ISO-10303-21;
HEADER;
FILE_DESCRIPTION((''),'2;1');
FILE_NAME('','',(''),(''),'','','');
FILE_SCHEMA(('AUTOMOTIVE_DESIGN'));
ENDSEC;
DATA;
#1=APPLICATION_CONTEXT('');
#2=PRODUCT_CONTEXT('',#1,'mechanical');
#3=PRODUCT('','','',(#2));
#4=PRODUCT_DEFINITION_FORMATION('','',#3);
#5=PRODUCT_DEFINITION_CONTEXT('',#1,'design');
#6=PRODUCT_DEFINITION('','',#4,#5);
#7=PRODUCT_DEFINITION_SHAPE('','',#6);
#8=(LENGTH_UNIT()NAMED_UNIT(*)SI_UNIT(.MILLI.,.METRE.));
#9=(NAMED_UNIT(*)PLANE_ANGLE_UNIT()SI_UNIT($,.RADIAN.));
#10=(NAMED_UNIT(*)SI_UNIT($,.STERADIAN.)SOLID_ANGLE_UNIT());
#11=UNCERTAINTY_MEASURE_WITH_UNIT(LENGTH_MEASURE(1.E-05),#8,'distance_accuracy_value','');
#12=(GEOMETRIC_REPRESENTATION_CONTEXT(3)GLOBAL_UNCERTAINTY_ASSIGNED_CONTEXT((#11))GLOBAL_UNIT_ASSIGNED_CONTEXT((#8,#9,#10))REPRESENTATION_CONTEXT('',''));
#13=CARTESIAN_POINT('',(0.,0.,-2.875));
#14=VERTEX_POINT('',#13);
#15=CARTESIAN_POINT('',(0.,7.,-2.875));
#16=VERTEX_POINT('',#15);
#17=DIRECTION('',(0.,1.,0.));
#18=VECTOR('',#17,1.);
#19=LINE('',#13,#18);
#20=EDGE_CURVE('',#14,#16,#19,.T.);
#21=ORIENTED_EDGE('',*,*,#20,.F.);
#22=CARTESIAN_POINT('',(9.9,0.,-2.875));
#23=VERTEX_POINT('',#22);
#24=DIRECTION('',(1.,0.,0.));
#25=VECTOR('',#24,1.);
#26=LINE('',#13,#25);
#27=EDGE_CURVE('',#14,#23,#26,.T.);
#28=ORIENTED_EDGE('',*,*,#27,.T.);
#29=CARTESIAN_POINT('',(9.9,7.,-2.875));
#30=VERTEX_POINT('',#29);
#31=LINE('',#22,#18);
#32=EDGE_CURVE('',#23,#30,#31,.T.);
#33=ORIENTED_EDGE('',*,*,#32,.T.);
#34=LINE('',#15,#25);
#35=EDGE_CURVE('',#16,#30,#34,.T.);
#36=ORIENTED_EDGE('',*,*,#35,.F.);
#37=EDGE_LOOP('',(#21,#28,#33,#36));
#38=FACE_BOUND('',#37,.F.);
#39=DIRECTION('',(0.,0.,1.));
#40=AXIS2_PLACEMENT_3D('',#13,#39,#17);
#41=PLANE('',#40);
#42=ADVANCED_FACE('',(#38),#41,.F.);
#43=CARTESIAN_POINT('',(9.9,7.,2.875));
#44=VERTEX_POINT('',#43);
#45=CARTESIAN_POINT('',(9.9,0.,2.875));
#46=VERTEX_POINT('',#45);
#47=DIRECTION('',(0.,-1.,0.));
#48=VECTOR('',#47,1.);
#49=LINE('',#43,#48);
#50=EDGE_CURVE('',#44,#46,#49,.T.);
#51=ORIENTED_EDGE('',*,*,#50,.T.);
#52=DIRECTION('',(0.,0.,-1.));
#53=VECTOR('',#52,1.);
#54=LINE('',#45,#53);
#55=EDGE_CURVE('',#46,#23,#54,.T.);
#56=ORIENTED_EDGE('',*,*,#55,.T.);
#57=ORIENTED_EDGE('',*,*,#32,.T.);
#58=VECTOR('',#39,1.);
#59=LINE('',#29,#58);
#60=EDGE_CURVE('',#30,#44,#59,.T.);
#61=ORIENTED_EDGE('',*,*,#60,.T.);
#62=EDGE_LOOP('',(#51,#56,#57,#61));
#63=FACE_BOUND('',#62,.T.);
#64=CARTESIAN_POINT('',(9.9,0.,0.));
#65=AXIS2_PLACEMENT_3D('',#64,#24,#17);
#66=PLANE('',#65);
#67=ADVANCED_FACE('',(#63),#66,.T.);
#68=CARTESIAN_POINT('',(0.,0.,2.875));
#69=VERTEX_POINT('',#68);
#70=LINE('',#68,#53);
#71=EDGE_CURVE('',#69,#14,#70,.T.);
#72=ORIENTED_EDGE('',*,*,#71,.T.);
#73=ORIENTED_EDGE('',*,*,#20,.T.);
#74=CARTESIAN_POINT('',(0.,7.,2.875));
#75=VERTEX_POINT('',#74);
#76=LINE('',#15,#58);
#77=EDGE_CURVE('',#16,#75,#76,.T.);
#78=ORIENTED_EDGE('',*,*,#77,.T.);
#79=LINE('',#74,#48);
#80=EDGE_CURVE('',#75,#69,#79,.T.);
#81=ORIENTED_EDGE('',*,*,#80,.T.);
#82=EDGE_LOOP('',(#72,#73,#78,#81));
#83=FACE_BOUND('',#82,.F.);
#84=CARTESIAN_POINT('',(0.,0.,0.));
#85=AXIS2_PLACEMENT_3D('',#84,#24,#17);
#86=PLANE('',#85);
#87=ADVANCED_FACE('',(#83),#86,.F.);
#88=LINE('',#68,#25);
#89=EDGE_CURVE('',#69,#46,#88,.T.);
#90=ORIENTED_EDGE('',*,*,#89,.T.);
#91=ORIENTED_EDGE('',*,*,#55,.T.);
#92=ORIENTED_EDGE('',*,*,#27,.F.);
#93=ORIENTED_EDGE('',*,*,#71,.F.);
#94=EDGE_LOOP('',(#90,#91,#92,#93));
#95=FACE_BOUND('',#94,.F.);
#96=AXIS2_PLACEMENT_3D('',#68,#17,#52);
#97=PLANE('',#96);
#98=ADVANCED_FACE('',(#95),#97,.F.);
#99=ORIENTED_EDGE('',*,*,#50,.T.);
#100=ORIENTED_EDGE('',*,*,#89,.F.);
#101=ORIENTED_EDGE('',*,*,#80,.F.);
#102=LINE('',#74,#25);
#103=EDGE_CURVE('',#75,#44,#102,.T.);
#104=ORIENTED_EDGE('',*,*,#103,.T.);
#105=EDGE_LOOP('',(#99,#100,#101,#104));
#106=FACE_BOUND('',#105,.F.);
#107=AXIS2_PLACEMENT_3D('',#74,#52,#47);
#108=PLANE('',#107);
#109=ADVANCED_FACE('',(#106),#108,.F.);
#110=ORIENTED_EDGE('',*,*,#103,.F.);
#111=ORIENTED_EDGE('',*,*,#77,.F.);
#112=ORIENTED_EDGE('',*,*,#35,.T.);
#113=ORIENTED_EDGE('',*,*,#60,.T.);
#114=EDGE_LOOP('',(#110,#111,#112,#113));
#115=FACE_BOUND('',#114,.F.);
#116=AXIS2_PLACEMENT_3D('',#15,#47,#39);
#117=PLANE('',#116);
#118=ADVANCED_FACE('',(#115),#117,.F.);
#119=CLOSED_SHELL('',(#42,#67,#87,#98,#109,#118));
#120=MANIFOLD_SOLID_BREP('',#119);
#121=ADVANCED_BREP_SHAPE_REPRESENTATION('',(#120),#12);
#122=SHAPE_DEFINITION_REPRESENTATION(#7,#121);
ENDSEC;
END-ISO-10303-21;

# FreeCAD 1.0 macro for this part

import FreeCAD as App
import Part
import Sketcher

V = App.Vector

doc = App.newDocument("Part")
body = doc.addObject("PartDesign::Body", "Body")

# Sketch on YZ plane
sketch1 = body.newObject("Sketcher::SketchObject", "Sketch")
sketch1.AttachmentSupport = (doc.getObject("YZ_Plane"), [""])
sketch1.MapMode = "FlatFace"
sketch1.addGeometry([
    Part.LineSegment(V(7, -3, 0), V(7, 3, 0)),
    Part.LineSegment(V(7, 3, 0), V(0, 3, 0)),
    Part.LineSegment(V(0, 3, 0), V(0, -3, 0)),
    Part.LineSegment(V(0, -3, 0), V(7, -3, 0)),
], False)
sketch1.addConstraint([
    Sketcher.Constraint("Coincident", 0, 2, 1, 1),
    Sketcher.Constraint("Coincident", 1, 2, 2, 1),
    Sketcher.Constraint("Coincident", 2, 2, 3, 1),
    Sketcher.Constraint("Coincident", 3, 2, 0, 1),
    Sketcher.Constraint("Vertical", 0),
    Sketcher.Constraint("Horizontal", 1),
    Sketcher.Constraint("Vertical", 2),
    Sketcher.Constraint("Horizontal", 3),
    Sketcher.Constraint("Symmetric", 1, 2, 2, 2, -1, 1),
    Sketcher.Constraint("DistanceX", 1, 2, 1, 1, 7.0),
    Sketcher.Constraint("DistanceY", 0, 1, 0, 2, 5.75),
])
pad1 = body.newObject("PartDesign::Pad", "Pad")
pad1.Profile = sketch1
pad1.Length = 9.9

doc.recompute()
